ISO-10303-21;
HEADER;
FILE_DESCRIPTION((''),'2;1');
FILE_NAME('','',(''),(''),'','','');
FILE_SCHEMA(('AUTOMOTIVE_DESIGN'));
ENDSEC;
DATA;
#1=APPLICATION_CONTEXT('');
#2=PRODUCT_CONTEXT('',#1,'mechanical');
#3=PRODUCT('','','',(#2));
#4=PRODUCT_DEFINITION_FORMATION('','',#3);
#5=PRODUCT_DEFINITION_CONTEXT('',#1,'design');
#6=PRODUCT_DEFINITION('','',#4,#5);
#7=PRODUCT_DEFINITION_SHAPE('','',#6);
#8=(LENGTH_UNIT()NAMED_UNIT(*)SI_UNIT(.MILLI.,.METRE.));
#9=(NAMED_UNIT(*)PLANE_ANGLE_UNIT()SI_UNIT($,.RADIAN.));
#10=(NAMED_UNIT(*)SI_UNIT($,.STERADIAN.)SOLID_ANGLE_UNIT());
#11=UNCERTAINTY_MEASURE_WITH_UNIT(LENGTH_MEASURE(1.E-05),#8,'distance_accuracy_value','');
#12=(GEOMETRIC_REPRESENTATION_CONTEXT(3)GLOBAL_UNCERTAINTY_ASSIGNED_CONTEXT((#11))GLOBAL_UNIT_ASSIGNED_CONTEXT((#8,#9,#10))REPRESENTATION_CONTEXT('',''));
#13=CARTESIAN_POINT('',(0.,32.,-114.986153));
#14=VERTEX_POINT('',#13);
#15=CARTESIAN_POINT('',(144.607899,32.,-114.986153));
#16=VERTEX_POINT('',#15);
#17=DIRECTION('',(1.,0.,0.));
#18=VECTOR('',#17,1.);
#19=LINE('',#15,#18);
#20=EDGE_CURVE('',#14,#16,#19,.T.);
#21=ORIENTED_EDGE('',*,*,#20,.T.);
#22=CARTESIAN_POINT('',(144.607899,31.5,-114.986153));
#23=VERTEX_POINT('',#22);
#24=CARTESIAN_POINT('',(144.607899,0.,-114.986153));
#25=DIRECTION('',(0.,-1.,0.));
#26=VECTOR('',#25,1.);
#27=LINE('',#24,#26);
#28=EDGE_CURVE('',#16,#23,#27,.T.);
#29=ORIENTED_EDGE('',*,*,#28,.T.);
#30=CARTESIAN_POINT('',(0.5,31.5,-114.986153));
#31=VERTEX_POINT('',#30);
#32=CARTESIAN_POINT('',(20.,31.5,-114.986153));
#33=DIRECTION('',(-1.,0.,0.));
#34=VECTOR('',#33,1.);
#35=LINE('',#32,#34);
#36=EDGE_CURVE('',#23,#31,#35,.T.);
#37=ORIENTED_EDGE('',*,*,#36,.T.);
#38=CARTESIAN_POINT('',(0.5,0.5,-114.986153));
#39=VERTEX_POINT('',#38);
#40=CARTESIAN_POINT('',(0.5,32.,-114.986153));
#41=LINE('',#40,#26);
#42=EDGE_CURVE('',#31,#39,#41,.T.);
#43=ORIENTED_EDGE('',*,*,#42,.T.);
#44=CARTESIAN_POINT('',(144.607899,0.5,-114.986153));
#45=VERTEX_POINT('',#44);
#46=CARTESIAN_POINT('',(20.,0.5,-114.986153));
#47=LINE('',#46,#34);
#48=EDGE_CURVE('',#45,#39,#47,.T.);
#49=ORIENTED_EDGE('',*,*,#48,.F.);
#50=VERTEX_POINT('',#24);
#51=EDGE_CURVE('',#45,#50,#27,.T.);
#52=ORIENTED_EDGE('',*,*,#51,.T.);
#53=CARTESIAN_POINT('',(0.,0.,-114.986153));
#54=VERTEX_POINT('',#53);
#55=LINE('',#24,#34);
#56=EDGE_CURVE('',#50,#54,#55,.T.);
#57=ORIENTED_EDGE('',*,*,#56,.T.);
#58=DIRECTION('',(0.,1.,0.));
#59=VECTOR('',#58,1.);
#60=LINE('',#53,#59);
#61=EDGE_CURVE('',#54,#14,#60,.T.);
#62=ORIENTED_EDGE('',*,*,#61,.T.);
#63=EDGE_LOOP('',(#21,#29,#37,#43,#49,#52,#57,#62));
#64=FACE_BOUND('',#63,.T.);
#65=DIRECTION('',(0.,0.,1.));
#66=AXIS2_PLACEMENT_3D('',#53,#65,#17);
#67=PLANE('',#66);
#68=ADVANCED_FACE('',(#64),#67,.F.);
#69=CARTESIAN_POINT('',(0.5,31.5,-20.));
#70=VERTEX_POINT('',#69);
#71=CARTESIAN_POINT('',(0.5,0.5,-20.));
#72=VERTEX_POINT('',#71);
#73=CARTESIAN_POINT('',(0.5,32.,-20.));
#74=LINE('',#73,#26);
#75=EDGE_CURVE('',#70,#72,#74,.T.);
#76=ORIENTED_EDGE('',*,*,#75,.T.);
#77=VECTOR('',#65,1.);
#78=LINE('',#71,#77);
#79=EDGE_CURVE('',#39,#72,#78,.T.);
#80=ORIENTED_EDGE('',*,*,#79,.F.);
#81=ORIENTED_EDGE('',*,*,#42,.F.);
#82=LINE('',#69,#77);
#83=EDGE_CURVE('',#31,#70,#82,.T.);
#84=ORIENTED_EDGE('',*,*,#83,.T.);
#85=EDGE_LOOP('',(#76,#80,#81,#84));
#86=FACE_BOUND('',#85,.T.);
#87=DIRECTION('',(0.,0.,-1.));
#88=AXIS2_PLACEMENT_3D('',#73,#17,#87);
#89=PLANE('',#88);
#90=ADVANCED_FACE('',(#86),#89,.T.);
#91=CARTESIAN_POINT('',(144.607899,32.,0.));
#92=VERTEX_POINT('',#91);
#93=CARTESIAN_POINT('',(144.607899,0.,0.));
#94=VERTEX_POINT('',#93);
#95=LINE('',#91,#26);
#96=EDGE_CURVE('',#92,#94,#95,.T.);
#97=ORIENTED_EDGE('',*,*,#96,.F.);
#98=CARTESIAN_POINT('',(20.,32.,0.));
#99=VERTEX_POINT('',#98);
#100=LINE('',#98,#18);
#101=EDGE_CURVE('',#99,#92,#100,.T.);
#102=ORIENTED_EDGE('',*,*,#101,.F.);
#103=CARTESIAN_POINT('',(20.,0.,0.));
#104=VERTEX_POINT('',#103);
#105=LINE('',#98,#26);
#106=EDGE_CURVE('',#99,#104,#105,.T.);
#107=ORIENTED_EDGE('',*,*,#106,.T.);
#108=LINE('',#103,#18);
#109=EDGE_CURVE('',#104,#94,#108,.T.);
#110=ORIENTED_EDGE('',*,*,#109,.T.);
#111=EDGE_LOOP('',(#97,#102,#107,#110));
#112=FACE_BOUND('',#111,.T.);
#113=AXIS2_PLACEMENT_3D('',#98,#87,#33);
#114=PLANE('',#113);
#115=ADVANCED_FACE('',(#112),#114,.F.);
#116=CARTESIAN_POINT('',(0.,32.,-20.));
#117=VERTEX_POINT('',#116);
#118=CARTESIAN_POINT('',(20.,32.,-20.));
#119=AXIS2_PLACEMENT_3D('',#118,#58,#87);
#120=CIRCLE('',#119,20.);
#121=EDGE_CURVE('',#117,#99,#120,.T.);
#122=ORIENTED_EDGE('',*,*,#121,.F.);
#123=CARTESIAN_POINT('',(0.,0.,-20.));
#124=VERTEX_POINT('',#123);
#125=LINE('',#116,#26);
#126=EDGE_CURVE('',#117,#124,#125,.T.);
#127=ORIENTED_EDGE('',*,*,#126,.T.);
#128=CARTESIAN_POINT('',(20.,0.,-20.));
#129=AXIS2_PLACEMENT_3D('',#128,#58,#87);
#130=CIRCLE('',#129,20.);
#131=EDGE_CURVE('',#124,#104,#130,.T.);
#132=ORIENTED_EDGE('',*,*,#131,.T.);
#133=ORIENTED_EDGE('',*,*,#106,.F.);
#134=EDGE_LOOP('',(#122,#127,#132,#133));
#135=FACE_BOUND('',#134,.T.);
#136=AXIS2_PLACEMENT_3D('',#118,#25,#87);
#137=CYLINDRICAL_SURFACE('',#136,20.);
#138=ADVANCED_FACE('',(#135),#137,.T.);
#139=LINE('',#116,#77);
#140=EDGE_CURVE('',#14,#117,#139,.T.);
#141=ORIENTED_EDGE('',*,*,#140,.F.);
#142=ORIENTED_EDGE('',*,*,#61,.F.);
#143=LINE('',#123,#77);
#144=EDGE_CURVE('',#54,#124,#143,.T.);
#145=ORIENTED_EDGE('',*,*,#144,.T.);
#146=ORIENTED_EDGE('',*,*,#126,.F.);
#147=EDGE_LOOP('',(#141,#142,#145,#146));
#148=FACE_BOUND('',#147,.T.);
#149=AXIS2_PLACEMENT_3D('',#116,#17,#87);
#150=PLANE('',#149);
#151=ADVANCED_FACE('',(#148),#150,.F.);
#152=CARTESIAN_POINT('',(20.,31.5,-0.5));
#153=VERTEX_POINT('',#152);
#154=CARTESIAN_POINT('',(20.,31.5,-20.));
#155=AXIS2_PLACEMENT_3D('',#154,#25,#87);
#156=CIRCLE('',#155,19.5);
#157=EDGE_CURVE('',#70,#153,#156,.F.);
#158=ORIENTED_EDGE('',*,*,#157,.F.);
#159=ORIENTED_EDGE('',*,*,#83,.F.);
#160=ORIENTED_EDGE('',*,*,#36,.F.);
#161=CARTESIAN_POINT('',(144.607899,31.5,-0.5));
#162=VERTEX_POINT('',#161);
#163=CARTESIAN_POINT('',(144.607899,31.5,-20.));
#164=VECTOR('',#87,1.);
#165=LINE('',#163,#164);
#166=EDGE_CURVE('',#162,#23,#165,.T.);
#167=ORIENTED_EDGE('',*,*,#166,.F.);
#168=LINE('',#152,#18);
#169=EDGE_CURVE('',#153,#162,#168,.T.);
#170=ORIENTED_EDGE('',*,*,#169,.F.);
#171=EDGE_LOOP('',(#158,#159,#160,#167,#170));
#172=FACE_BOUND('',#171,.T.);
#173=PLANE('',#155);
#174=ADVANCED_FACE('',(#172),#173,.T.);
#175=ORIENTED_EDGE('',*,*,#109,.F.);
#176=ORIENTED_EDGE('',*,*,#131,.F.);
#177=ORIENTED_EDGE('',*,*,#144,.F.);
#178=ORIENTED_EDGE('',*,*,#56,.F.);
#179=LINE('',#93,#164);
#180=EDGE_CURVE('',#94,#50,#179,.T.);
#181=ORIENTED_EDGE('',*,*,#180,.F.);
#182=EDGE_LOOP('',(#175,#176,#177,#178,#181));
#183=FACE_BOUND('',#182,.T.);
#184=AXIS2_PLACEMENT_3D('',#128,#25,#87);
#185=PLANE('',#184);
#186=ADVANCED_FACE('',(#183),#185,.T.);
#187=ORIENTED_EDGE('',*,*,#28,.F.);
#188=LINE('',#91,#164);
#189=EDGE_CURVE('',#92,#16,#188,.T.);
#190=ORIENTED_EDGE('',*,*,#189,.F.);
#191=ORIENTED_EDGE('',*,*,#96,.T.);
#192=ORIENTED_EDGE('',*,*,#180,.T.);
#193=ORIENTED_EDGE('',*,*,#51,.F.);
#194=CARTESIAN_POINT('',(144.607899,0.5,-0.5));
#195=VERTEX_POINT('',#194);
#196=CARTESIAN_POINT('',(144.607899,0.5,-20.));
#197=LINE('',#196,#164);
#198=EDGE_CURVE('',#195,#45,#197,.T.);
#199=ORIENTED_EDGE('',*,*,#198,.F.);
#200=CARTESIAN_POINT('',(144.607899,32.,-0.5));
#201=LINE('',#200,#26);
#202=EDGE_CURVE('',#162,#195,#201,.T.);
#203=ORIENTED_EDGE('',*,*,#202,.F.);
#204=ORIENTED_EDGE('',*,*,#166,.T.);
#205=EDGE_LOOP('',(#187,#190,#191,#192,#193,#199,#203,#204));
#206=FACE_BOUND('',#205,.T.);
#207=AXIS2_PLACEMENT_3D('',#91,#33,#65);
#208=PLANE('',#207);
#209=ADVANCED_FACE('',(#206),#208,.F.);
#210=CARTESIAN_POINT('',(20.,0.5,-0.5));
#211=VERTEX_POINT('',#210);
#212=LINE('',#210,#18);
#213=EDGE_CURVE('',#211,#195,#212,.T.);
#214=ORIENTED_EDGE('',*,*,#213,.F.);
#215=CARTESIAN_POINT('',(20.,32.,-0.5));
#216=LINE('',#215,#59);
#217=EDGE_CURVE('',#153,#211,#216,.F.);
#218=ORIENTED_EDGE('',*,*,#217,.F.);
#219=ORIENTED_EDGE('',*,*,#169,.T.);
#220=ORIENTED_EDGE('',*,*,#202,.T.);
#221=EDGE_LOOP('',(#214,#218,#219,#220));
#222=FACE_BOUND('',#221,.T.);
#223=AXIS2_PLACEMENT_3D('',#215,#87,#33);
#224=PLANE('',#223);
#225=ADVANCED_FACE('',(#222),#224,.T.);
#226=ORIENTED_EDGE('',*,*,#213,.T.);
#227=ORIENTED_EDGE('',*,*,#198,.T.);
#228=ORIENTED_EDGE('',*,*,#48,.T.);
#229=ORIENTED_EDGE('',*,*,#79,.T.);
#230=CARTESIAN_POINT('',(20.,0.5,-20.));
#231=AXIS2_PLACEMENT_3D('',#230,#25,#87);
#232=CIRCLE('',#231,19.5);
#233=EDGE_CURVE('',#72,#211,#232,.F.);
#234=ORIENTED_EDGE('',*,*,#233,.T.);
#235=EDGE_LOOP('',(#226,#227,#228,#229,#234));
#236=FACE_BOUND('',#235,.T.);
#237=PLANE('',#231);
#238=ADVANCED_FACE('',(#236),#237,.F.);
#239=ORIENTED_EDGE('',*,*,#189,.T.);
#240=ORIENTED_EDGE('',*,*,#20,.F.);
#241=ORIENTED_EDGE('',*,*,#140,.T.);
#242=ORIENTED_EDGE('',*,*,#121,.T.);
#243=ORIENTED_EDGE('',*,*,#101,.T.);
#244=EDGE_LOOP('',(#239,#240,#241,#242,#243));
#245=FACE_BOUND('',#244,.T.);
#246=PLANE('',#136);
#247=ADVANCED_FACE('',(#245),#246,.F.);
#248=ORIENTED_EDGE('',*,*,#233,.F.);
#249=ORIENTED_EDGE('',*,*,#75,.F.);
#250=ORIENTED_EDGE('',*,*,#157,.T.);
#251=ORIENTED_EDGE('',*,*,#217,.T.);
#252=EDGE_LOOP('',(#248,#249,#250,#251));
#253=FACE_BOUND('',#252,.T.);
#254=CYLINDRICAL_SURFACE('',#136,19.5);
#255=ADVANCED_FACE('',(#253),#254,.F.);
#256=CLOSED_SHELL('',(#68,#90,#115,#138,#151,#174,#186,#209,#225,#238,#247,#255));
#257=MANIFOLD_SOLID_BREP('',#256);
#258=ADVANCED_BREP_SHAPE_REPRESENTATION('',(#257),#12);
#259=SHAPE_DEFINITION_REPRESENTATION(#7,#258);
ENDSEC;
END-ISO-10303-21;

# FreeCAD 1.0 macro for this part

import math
import FreeCAD as App
import Part
import Sketcher


def faces_at(feature, points):
    """Names of the faces that lie closest to the given points."""
    faces = feature.Shape.Faces
    near = lambda p: min(range(len(faces)), key=lambda i: faces[i].distToShape(Part.Vertex(*p))[0])
    return sorted({f"Face{near(p) + 1}" for p in points})


def add_polygon(sketch, points):
    """Adds a closed chain of lines whose ends are joined by coincident constraints."""
    first, n = sketch.GeometryCount, len(points)
    for a, b in zip(points, points[1:] + points[:1]):
        sketch.addGeometry(Part.LineSegment(App.Vector(*a, 0), App.Vector(*b, 0)), False)
    for i in range(n):
        sketch.addConstraint(Sketcher.Constraint("Coincident", first + i, 2, first + (i + 1) % n, 1))

doc = App.newDocument("Part")
body = doc.addObject("PartDesign::Body", "Body")

# Sketch on XZ plane
sketch1 = doc.addObject("Sketcher::SketchObject", "Sketch")
body.addObject(sketch1)
sketch1.AttachmentSupport = (doc.XZ_Plane, [""])
sketch1.MapMode = "FlatFace"
sketch1.addGeometry([
    Part.LineSegment(App.Vector(20, 0, 0), App.Vector(145, 0, 0)),  # 0
    Part.LineSegment(App.Vector(145, 0, 0), App.Vector(145, -118, 0)),  # 1
    Part.LineSegment(App.Vector(145, -118, 0), App.Vector(0, -118, 0)),  # 2
    Part.LineSegment(App.Vector(0, -118, 0), App.Vector(0, -20, 0)),  # 3
    Part.ArcOfCircle(Part.Circle(App.Vector(20, -20, 0), App.Vector(0, 0, 1), 20), math.radians(90), math.radians(180)),  # 4
], False)
sketch1.addConstraint([
    Sketcher.Constraint("Coincident", 0, 2, 1, 1),
    Sketcher.Constraint("Coincident", 1, 2, 2, 1),
    Sketcher.Constraint("Coincident", 2, 2, 3, 1),
    Sketcher.Constraint("Tangent", 3, 2, 4, 2),
    Sketcher.Constraint("Tangent", 4, 1, 0, 1),
    Sketcher.Constraint("Horizontal", 0),
    Sketcher.Constraint("Vertical", 1),
    Sketcher.Constraint("Horizontal", 2),
    Sketcher.Constraint("Vertical", 3),
    Sketcher.Constraint("PointOnObject", 0, 2, -1),
    Sketcher.Constraint("PointOnObject", 2, 2, -2),
    Sketcher.Constraint("Radius", 4, 20.0),
    Sketcher.Constraint("DistanceX", 0, 1, 0, 2, 124.607899),
    Sketcher.Constraint("DistanceY", 1, 2, 1, 1, 117.986153),
])
pad1 = doc.addObject("PartDesign::Pad", "Pad")
body.addObject(pad1)
pad1.Profile = sketch1
pad1.Length = 32
pad1.Reversed = True
doc.recompute()

thickness = doc.addObject("PartDesign::Thickness", "Thickness")
body.addObject(thickness)
thickness.Base = (pad1, faces_at(pad1, [(144.608, 16, -58.993)]))
thickness.Value = 0.5
thickness.Reversed = True
thickness.Join = "Intersection"

# Sketch on XY plane
sketch2 = doc.addObject("Sketcher::SketchObject", "Sketch001")
body.addObject(sketch2)
sketch2.AttachmentSupport = (doc.XY_Plane, [""])
sketch2.MapMode = "FlatFace"
sketch2.AttachmentOffset = App.Placement(App.Vector(0, 0, -117.986153), App.Rotation())
add_polygon(sketch2, [(145, 32), (145, 0), (0, 0), (0, 32)])  # lines 0-3
sketch2.addConstraint([
    Sketcher.Constraint("Vertical", 0),
    Sketcher.Constraint("Horizontal", 1),
    Sketcher.Constraint("Vertical", 2),
    Sketcher.Constraint("Horizontal", 3),
    Sketcher.Constraint("Coincident", 1, 2, -1, 1),
    Sketcher.Constraint("DistanceY", 0, 2, 0, 1, 32.0),
    Sketcher.Constraint("DistanceX", 1, 2, 1, 1, 144.607899),
])
pocket1 = doc.addObject("PartDesign::Pocket", "Pocket")
body.addObject(pocket1)
pocket1.Profile = sketch2
pocket1.Length = 3
pocket1.Reversed = True

doc.recompute()
